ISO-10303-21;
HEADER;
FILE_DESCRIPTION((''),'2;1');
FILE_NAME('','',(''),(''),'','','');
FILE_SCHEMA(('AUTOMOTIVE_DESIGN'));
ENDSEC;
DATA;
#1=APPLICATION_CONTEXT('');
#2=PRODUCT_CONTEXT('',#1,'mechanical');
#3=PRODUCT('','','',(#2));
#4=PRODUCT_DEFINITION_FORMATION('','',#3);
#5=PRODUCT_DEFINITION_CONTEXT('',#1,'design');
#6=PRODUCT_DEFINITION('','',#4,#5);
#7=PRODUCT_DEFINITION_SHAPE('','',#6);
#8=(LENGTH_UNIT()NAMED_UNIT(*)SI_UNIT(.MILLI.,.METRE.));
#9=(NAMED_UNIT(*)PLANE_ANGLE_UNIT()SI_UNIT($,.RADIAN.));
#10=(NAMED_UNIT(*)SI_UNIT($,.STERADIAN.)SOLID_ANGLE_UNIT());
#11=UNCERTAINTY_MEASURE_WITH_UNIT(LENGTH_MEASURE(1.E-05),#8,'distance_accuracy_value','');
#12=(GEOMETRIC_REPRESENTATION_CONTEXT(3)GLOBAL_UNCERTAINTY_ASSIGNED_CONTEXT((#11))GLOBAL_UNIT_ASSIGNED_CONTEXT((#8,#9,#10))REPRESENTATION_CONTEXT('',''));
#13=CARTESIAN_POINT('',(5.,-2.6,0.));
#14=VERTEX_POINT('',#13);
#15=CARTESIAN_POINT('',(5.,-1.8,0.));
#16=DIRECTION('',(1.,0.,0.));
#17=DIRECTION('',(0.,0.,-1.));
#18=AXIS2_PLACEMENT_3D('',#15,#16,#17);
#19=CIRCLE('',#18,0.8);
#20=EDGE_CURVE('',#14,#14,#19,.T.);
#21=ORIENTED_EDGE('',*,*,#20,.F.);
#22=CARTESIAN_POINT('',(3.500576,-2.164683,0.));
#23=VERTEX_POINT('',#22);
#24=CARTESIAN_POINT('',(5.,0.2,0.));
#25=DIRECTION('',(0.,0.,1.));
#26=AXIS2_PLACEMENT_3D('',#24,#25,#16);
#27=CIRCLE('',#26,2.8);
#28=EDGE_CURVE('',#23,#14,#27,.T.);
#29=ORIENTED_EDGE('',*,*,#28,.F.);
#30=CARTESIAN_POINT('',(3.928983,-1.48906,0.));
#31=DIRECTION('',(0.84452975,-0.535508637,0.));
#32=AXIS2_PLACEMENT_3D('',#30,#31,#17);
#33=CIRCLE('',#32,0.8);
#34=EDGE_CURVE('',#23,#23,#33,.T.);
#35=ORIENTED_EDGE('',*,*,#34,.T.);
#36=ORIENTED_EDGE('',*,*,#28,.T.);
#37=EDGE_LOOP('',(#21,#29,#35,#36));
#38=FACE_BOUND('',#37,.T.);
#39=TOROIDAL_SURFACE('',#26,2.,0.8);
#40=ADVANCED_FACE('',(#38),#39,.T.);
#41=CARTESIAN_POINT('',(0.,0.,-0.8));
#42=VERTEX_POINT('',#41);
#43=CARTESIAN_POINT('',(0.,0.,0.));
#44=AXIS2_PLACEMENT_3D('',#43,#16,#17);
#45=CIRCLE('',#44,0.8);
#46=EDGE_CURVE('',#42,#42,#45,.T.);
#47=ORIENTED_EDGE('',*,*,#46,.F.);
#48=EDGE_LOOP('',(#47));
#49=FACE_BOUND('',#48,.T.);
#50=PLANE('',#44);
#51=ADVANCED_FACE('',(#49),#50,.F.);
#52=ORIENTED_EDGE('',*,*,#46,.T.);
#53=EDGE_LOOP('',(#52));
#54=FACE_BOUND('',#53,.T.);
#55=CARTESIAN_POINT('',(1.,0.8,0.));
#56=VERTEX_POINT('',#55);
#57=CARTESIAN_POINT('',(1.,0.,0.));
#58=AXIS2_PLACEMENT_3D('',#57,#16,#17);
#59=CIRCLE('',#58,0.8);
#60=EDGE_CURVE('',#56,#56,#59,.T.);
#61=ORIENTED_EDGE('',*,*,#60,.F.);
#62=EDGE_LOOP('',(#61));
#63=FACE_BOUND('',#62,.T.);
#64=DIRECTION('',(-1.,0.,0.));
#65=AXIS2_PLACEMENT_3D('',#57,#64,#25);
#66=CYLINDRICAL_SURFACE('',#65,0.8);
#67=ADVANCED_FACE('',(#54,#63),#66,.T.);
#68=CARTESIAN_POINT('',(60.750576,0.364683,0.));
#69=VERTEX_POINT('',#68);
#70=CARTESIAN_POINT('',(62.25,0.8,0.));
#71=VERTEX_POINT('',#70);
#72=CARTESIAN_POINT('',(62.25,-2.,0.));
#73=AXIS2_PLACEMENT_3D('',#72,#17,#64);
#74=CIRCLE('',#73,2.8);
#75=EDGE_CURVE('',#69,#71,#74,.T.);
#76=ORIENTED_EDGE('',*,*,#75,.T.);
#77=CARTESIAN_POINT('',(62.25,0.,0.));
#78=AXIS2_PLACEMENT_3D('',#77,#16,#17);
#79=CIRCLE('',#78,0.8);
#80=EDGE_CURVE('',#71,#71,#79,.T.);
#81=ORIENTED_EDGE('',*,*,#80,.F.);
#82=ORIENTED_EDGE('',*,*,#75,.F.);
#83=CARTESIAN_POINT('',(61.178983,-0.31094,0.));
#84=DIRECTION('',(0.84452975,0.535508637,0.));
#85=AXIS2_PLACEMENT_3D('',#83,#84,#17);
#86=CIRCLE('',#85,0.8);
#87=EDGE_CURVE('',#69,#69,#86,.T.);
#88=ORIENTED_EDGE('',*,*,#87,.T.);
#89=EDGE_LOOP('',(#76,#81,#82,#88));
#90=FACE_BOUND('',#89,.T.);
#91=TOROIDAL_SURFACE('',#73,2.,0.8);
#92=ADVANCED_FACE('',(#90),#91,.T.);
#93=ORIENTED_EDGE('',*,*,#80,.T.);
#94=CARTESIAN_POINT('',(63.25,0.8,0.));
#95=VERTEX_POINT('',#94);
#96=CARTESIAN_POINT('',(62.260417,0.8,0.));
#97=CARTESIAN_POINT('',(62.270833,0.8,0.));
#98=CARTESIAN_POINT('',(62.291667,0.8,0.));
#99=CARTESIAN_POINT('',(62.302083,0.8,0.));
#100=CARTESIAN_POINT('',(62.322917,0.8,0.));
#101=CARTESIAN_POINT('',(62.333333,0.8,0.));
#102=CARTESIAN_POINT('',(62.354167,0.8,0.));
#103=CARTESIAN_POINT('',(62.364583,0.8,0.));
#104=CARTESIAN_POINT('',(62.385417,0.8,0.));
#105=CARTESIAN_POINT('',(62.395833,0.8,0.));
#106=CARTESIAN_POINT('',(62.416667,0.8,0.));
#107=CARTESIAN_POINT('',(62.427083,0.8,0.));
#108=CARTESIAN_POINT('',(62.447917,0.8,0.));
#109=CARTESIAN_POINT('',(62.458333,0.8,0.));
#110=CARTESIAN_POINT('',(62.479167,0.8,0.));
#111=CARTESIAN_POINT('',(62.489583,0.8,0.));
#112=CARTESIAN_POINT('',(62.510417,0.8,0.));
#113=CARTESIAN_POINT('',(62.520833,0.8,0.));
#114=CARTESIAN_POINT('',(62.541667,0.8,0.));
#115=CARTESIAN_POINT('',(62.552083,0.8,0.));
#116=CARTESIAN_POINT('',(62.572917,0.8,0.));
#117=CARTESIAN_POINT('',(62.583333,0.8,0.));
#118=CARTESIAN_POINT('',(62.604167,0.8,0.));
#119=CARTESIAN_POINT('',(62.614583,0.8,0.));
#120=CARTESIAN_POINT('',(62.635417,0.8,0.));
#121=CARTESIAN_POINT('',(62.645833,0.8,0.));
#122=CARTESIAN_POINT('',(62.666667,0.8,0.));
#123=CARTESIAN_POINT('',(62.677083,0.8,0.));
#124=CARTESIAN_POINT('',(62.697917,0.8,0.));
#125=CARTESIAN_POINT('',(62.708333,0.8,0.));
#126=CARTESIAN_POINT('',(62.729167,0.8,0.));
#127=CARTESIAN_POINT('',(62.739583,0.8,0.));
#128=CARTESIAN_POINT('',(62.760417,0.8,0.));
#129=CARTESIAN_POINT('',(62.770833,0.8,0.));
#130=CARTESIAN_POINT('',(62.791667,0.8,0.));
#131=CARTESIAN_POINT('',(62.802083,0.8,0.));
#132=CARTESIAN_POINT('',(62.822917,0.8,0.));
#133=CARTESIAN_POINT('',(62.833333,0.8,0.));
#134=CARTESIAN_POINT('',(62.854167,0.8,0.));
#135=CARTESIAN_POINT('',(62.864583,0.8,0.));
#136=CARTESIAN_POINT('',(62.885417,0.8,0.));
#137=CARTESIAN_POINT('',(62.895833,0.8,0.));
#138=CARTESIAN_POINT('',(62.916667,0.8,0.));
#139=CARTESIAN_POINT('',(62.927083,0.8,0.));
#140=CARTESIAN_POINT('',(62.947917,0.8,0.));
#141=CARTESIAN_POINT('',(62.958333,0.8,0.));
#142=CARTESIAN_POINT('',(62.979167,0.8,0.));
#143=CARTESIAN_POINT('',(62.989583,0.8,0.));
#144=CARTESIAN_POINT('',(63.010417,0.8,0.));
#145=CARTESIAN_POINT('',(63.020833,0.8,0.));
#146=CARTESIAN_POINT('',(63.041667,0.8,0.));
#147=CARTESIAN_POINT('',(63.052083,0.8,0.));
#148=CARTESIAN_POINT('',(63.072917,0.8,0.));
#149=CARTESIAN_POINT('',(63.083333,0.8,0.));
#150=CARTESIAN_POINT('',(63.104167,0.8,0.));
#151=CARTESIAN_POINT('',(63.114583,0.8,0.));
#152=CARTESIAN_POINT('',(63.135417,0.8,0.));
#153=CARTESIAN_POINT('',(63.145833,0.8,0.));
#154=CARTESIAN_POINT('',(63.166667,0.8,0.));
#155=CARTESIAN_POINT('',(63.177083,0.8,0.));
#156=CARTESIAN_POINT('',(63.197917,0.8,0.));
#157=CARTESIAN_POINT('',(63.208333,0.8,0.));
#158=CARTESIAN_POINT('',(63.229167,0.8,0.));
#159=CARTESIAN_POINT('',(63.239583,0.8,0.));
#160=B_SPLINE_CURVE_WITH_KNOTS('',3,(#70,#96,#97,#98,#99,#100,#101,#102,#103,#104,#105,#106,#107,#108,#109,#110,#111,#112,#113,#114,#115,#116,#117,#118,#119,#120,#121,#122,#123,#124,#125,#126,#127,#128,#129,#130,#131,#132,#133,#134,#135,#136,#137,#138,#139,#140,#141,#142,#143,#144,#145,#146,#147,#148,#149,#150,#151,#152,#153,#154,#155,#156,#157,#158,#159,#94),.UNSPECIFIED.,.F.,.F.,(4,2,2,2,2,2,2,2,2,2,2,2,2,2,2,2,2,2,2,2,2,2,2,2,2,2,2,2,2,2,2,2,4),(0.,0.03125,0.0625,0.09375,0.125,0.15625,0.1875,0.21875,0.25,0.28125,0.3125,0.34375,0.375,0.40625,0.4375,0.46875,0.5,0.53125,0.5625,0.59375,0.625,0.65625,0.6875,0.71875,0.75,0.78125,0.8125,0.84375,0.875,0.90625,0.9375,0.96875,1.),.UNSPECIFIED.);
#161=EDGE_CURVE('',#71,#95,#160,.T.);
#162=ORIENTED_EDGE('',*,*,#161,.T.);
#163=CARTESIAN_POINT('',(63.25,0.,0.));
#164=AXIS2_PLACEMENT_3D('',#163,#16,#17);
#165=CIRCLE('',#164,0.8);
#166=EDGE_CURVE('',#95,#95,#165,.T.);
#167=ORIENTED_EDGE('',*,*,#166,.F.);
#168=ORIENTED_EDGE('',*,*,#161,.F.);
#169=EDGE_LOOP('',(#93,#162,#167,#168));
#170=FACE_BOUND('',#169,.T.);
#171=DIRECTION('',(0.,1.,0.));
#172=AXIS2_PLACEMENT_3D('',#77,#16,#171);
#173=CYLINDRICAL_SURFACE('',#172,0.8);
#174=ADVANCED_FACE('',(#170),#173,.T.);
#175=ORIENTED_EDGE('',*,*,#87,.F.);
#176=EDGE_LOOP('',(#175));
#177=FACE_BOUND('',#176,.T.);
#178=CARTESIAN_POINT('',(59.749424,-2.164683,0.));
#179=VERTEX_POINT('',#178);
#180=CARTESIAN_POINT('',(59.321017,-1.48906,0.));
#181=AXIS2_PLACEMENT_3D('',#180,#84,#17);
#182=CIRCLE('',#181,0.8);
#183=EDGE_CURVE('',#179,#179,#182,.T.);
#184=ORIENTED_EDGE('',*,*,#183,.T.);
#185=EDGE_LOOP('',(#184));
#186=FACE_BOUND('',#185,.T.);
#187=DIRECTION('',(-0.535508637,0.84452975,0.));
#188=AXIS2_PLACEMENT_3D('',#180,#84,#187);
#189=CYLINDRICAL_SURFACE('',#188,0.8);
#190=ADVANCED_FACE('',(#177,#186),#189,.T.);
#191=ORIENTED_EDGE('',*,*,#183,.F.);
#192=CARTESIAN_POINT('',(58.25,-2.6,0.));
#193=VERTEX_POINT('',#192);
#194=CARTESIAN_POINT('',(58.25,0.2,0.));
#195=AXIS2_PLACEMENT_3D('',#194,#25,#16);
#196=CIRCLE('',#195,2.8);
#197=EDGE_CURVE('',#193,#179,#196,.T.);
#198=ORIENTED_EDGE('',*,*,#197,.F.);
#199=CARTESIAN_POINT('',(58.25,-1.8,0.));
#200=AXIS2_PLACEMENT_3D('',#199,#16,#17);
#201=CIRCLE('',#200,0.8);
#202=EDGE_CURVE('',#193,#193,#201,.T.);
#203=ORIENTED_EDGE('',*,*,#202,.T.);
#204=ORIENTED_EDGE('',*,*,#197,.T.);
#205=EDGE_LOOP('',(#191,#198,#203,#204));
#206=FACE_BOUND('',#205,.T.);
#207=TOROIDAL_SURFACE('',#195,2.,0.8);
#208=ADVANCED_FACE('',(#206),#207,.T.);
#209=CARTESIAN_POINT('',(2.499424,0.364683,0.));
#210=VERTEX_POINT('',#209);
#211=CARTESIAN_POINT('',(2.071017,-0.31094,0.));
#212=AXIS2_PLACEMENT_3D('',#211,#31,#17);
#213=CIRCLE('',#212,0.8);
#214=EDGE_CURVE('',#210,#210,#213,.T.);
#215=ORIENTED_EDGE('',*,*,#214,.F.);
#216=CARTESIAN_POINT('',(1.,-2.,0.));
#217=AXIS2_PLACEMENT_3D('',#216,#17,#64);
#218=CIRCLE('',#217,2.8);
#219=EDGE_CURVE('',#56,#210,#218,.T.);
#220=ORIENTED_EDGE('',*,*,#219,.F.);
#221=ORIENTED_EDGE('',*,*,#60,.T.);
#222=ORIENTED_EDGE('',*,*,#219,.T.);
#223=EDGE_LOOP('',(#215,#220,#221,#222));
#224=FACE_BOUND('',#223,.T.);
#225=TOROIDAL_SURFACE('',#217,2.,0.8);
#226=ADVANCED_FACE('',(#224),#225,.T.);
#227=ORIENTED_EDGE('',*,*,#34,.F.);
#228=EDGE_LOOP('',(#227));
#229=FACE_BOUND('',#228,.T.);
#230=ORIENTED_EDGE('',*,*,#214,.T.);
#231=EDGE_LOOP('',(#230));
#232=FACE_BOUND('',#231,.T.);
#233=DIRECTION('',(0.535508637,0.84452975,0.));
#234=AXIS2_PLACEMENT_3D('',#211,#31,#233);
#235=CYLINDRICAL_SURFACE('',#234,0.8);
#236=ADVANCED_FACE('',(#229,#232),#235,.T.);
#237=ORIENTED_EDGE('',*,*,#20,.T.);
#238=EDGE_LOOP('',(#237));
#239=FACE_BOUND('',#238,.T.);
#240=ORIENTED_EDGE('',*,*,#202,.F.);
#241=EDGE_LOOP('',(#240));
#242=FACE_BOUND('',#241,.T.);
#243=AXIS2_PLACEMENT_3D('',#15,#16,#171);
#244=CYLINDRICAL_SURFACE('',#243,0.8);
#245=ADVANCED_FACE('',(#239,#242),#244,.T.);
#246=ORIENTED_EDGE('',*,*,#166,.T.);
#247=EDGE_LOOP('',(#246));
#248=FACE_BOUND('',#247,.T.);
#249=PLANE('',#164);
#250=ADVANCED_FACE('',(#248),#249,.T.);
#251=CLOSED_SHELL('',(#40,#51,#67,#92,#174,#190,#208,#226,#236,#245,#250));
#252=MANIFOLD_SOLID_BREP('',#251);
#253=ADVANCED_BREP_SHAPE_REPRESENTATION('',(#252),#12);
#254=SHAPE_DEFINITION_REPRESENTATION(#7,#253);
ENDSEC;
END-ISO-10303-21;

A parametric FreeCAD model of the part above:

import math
import FreeCAD as App
import Part
import Sketcher
Q = App.Units.Quantity

doc = App.newDocument("Part")
body = doc.addObject("PartDesign::Body", "Body")

sketch1 = doc.addObject("Sketcher::SketchObject", "Sketch")
body.addObject(sketch1)
sketch1.AttachmentSupport = (doc.YZ_Plane, [""])
sketch1.MapMode = "FlatFace"
sketch1.addGeometry(Part.Circle(App.Vector(0, 0, 0), App.Vector(0, 0, 1), 0.8), False)
sketch1.addConstraint([
    Sketcher.Constraint("Coincident", 0, 3, -1, 1),
    Sketcher.Constraint("Diameter", 0, Q("1.6 mm")),
])

sketch2 = doc.addObject("Sketcher::SketchObject", "Sketch001")
body.addObject(sketch2)
sketch2.AttachmentSupport = (doc.XY_Plane, [""])
sketch2.MapMode = "FlatFace"
sketch2.addGeometry([
    Part.LineSegment(App.Vector(0, 0, 0), App.Vector(1, 0, 0)),
    Part.ArcOfCircle(Part.Circle(App.Vector(1, -2, 0), App.Vector(0, 0, 1), 2), math.radians(58), math.radians(90)),
    Part.LineSegment(App.Vector(2.1, -0.3, 0), App.Vector(3.9, -1.5, 0)),
    Part.ArcOfCircle(Part.Circle(App.Vector(5, 0.2, 0), App.Vector(0, 0, 1), 2), math.radians(-122), math.radians(-90)),
    Part.LineSegment(App.Vector(5, -1.8, 0), App.Vector(58.2, -1.8, 0)),
    Part.ArcOfCircle(Part.Circle(App.Vector(58.3, 0.2, 0), App.Vector(0, 0, 1), 2), math.radians(-90), math.radians(-58)),
    Part.LineSegment(App.Vector(59.3, -1.5, 0), App.Vector(61.2, -0.3, 0)),
    Part.ArcOfCircle(Part.Circle(App.Vector(62.2, -2, 0), App.Vector(0, 0, 1), 2), math.radians(90), math.radians(122)),
    Part.LineSegment(App.Vector(62.2, 0, 0), App.Vector(63.2, 0, 0)),
], False)
sketch2.addConstraint([
    Sketcher.Constraint("Tangent", 0, 2, 1, 2),
    Sketcher.Constraint("Tangent", 1, 1, 2, 1),
    Sketcher.Constraint("Tangent", 2, 2, 3, 1),
    Sketcher.Constraint("Tangent", 3, 2, 4, 1),
    Sketcher.Constraint("Tangent", 4, 2, 5, 1),
    Sketcher.Constraint("Tangent", 5, 2, 6, 1),
    Sketcher.Constraint("Tangent", 6, 2, 7, 2),
    Sketcher.Constraint("Tangent", 7, 1, 8, 1),
    Sketcher.Constraint("Horizontal", 0),
    Sketcher.Constraint("Horizontal", 4),
    Sketcher.Constraint("Horizontal", 8),
    Sketcher.Constraint("Coincident", 0, 1, -1, 1),
    Sketcher.Constraint("Equal", 1, 3),
    Sketcher.Constraint("Equal", 3, 5),
    Sketcher.Constraint("Equal", 5, 7),
    Sketcher.Constraint("PointOnObject", 7, 1, -1),
    Sketcher.Constraint("Horizontal", 2, 2, 5, 2),
    Sketcher.Constraint("Equal", 0, 8),
    Sketcher.Constraint("Radius", 1, Q("2 mm")),
    Sketcher.Constraint("DistanceX", 0, 1, 0, 2, Q("1 mm")),
    Sketcher.Constraint("DistanceX", -1, 1, 3, 3, Q("5 mm")),
    Sketcher.Constraint("Distance", 2, Q("2.2 mm")),
    Sketcher.Constraint("DistanceX", 4, 1, 4, 2, Q("53.25 mm")),
])
doc.recompute()

additivepipe = doc.addObject("PartDesign::AdditivePipe", "AdditivePipe")
body.addObject(additivepipe)
additivepipe.Profile = sketch1
additivepipe.Spine = (sketch2, ["Edge1", "Edge2", "Edge3", "Edge4", "Edge5", "Edge6", "Edge7", "Edge8", "Edge9"])

doc.recompute()
